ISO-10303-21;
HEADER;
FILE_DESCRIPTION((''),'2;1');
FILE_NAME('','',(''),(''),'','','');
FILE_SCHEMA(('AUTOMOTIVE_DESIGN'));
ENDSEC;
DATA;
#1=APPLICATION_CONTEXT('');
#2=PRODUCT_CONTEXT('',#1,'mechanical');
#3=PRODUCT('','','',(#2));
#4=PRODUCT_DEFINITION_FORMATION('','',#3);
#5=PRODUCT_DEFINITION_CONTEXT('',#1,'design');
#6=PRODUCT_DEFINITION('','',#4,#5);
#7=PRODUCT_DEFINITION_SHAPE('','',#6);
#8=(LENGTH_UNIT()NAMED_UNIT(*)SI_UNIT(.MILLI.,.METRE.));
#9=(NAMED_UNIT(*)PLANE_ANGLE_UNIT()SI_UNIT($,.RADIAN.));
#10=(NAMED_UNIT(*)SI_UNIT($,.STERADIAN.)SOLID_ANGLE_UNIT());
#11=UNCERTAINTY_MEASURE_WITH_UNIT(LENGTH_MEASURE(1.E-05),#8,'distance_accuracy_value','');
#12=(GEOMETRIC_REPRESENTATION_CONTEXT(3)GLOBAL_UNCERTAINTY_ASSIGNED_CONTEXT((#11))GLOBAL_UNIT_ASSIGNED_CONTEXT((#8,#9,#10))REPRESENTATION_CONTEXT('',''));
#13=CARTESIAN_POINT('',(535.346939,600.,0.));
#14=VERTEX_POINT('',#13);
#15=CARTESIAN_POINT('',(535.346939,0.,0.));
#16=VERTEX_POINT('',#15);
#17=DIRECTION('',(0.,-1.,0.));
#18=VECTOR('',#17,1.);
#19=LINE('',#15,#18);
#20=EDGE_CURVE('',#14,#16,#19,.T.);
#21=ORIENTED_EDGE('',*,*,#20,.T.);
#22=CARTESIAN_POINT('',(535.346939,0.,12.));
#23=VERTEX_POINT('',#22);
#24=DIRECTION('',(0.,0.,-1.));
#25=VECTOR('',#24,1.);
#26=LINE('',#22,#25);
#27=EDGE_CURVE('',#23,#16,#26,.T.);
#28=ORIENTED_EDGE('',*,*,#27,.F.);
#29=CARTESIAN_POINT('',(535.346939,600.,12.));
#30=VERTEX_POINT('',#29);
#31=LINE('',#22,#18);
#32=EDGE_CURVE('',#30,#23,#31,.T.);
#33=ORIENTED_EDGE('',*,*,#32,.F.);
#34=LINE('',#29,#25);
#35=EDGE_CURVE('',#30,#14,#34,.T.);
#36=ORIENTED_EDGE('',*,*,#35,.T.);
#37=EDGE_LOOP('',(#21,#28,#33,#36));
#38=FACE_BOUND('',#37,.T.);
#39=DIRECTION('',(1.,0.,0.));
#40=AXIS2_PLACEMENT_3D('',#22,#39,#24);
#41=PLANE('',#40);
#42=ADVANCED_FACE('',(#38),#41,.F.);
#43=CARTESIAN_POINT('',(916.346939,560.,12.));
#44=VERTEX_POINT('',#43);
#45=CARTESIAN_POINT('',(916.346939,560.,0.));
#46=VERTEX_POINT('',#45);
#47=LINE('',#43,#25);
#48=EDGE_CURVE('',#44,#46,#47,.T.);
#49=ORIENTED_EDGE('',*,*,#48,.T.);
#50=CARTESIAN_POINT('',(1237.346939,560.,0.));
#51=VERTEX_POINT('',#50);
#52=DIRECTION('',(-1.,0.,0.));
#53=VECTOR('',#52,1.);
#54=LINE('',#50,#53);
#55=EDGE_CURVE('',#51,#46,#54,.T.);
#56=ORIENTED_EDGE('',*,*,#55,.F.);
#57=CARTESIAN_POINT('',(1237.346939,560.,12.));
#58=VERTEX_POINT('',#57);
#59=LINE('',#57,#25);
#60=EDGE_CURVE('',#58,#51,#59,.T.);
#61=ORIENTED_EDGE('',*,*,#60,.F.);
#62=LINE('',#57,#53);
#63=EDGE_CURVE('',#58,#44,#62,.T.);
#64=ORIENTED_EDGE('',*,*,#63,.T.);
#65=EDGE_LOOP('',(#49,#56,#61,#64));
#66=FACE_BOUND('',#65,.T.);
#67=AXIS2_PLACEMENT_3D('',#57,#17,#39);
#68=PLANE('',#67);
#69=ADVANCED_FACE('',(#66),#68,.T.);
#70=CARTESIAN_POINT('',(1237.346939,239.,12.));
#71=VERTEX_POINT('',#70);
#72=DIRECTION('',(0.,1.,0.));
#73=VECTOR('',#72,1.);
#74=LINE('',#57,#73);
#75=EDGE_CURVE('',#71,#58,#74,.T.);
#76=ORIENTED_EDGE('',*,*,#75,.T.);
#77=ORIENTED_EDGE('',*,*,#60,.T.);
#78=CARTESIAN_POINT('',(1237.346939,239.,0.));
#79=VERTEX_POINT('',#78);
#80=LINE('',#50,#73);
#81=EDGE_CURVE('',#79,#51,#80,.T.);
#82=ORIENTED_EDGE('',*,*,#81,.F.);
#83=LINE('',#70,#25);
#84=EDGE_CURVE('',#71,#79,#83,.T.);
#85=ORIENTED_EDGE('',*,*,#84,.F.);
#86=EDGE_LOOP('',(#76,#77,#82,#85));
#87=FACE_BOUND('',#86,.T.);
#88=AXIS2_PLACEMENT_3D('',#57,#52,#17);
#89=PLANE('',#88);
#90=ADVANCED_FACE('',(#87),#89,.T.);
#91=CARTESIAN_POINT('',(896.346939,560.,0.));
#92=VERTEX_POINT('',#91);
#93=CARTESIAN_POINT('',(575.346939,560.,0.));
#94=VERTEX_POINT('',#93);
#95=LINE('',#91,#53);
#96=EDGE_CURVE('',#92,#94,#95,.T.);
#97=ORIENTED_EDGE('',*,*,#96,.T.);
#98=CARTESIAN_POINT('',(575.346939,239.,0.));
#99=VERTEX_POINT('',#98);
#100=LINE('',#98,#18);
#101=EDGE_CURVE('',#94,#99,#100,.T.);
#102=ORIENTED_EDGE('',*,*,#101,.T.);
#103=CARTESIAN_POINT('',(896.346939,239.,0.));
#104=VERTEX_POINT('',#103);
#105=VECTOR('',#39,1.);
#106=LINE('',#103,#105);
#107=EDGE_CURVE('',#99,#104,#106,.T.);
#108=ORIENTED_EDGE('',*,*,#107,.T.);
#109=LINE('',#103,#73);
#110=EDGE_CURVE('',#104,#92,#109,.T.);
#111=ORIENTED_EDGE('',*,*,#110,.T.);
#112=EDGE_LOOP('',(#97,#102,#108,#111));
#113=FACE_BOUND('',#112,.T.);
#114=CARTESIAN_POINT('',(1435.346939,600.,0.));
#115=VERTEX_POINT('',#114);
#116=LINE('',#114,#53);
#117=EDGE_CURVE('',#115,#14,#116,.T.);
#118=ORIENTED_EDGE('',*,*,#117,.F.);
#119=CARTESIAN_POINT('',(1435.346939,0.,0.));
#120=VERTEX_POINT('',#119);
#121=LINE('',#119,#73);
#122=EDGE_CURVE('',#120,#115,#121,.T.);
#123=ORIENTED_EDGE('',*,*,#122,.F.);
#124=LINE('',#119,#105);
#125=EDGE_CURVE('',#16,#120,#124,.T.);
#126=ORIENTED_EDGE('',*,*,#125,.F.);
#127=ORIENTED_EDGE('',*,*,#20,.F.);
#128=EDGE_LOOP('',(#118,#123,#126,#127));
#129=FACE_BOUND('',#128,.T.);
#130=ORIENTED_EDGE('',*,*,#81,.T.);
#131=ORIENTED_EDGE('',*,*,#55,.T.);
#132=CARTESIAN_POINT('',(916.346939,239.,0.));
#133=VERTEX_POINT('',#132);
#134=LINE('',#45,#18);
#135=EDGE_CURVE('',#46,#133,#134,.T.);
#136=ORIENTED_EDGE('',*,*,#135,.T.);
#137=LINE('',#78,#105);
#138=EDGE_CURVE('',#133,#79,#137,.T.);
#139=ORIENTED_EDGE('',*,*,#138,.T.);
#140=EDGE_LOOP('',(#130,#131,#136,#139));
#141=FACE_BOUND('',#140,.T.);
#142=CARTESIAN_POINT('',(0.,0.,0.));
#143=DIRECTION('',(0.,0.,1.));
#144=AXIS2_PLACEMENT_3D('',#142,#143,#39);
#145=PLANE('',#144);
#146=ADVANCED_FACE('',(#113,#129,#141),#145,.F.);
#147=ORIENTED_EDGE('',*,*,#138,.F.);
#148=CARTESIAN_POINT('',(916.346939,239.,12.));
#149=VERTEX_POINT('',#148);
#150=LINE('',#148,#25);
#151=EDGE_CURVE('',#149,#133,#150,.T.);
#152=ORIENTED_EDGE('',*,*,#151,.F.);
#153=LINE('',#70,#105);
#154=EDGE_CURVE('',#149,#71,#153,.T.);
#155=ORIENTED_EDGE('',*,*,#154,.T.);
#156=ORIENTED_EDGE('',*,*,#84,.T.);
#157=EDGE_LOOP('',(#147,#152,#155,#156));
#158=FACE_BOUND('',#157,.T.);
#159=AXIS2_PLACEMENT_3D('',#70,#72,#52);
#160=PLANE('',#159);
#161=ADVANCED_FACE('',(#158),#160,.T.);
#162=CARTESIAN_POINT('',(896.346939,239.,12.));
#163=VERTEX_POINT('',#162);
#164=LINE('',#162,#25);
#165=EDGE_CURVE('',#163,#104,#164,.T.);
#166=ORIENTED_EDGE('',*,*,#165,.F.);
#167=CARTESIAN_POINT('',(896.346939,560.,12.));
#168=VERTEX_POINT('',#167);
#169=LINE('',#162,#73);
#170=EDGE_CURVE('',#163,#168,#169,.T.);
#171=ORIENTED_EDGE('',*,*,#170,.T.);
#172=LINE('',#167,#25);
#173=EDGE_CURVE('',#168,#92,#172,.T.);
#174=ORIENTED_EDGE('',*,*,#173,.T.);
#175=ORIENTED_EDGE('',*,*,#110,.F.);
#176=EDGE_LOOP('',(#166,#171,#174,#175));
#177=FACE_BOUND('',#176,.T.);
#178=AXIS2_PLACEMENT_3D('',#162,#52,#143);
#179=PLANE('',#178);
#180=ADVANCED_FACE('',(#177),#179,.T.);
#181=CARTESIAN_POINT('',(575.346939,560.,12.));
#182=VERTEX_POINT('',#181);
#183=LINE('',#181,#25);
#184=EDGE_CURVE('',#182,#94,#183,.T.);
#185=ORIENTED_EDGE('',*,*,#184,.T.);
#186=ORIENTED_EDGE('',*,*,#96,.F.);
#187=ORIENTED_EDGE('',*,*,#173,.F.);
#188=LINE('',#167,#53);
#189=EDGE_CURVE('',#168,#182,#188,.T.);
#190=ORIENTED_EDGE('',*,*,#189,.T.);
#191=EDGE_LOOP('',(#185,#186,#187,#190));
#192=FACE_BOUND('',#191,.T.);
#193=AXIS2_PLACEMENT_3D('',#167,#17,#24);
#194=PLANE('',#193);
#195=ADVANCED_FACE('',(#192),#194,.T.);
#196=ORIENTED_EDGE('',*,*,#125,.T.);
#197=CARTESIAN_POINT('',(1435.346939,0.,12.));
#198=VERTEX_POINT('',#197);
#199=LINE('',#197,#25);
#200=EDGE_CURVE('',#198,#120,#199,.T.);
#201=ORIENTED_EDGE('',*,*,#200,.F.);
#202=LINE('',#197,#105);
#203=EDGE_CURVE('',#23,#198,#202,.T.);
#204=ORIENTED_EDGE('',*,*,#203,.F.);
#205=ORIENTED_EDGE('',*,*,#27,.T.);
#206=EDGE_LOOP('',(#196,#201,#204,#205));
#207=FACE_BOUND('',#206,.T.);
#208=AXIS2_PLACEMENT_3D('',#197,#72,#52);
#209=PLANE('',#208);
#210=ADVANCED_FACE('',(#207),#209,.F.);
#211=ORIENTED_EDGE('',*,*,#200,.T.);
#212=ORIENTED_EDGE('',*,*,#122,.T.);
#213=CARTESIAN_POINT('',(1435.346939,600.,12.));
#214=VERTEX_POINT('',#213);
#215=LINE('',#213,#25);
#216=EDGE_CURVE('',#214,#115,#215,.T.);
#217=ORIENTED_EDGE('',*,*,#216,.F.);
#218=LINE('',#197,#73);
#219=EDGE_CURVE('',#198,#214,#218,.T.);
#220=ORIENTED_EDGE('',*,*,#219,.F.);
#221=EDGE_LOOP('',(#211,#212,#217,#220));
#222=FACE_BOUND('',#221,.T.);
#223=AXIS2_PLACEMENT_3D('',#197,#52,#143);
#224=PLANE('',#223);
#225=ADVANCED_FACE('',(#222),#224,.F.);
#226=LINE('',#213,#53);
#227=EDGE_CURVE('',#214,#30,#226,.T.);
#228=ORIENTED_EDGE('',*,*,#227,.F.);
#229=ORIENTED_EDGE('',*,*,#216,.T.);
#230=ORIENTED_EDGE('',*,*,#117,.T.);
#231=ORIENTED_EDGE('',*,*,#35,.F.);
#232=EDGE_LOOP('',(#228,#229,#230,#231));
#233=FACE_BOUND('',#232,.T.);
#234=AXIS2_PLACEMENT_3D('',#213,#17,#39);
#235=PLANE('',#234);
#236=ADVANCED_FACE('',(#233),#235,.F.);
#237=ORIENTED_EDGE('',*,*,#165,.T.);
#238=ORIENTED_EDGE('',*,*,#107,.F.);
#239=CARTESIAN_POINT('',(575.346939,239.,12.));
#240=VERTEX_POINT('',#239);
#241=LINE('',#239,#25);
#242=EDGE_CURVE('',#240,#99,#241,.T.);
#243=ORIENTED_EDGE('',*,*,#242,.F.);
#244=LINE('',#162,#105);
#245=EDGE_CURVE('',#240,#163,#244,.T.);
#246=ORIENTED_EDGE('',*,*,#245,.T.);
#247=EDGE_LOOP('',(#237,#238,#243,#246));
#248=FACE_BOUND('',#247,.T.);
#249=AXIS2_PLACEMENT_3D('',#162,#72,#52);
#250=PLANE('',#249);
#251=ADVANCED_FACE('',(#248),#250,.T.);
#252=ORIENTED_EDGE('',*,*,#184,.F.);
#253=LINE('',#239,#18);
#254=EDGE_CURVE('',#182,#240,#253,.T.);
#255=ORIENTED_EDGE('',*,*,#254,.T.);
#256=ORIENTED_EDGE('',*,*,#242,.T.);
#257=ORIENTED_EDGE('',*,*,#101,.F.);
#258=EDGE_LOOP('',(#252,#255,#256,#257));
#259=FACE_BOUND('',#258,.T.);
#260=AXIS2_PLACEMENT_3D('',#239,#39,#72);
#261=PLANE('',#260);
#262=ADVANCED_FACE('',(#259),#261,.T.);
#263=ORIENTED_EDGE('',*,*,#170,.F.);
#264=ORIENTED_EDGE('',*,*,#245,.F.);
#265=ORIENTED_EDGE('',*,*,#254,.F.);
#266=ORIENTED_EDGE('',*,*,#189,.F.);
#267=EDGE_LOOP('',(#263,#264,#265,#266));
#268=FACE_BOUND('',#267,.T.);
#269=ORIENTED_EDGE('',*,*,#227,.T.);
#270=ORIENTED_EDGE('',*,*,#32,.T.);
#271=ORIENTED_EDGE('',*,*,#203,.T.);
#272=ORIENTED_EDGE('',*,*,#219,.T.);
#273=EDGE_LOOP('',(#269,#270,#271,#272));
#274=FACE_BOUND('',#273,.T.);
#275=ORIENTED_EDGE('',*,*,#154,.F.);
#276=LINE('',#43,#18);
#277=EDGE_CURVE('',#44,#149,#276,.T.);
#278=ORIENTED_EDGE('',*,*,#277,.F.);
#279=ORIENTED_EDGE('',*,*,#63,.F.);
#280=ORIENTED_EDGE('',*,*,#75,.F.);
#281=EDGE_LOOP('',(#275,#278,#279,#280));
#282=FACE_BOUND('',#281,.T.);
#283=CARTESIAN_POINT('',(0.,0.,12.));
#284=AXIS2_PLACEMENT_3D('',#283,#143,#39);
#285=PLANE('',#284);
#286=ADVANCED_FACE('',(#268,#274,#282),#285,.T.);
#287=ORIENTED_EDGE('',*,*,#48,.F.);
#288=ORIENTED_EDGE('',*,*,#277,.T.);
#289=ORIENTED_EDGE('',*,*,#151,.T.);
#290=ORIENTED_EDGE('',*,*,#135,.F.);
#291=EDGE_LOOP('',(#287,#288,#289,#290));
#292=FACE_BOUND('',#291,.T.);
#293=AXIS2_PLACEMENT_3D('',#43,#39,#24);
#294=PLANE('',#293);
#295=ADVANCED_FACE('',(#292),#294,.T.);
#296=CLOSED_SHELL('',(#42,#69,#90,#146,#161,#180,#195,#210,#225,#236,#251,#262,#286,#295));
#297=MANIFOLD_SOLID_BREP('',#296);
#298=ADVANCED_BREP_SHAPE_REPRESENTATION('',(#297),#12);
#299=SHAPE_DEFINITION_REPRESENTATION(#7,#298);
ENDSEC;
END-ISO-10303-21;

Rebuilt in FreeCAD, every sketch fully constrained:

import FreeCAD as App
import Part
import Sketcher

V = App.Vector
Q = App.Units.Quantity

doc = App.newDocument("Part")
body = doc.addObject("PartDesign::Body", "Body")

sketch1 = body.newObject("Sketcher::SketchObject", "Sketch")
sketch1.AttachmentSupport = (doc.getObject("XY_Plane"), [""])
sketch1.MapMode = "FlatFace"
sketch1.addGeometry([
    Part.LineSegment(V(535, 600, 0), V(535, 0, 0)),
    Part.LineSegment(V(535, 0, 0), V(1435, 0, 0)),
    Part.LineSegment(V(1435, 0, 0), V(1435, 600, 0)),
    Part.LineSegment(V(1435, 600, 0), V(535, 600, 0)),
    Part.LineSegment(V(896, 239, 0), V(575, 239, 0)),
    Part.LineSegment(V(575, 239, 0), V(575, 560, 0)),
    Part.LineSegment(V(575, 560, 0), V(896, 560, 0)),
    Part.LineSegment(V(896, 560, 0), V(896, 239, 0)),
    Part.LineSegment(V(1237, 239, 0), V(916, 239, 0)),
    Part.LineSegment(V(916, 239, 0), V(916, 560, 0)),
    Part.LineSegment(V(916, 560, 0), V(1237, 560, 0)),
    Part.LineSegment(V(1237, 560, 0), V(1237, 239, 0)),
], False)
sketch1.addConstraint([
    Sketcher.Constraint("Coincident", 0, 2, 1, 1),
    Sketcher.Constraint("Coincident", 1, 2, 2, 1),
    Sketcher.Constraint("Coincident", 2, 2, 3, 1),
    Sketcher.Constraint("Coincident", 3, 2, 0, 1),
    Sketcher.Constraint("Coincident", 4, 2, 5, 1),
    Sketcher.Constraint("Coincident", 5, 2, 6, 1),
    Sketcher.Constraint("Coincident", 6, 2, 7, 1),
    Sketcher.Constraint("Coincident", 7, 2, 4, 1),
    Sketcher.Constraint("Coincident", 8, 2, 9, 1),
    Sketcher.Constraint("Coincident", 9, 2, 10, 1),
    Sketcher.Constraint("Coincident", 10, 2, 11, 1),
    Sketcher.Constraint("Coincident", 11, 2, 8, 1),
    Sketcher.Constraint("Vertical", 0),
    Sketcher.Constraint("Horizontal", 1),
    Sketcher.Constraint("Vertical", 2),
    Sketcher.Constraint("Horizontal", 3),
    Sketcher.Constraint("Horizontal", 4),
    Sketcher.Constraint("Vertical", 5),
    Sketcher.Constraint("Horizontal", 6),
    Sketcher.Constraint("Vertical", 7),
    Sketcher.Constraint("Horizontal", 8),
    Sketcher.Constraint("Vertical", 9),
    Sketcher.Constraint("Horizontal", 10),
    Sketcher.Constraint("Vertical", 11),
    Sketcher.Constraint("PointOnObject", 0, 2, -1),
    Sketcher.Constraint("Horizontal", 7, 2, 8, 2),
    Sketcher.Constraint("Horizontal", 6, 2, 9, 2),
    Sketcher.Constraint("Equal", 6, 8),
    Sketcher.Constraint("Equal", 10, 5),
    Sketcher.Constraint("DistanceX", 1, 1, 1, 2, Q("900 mm")),
    Sketcher.Constraint("DistanceX", 4, 2, 4, 1, Q("321 mm")),
    Sketcher.Constraint("DistanceY", 0, 2, 0, 1, Q("600 mm")),
    Sketcher.Constraint("DistanceY", -1, 1, 4, 2, Q("239 mm")),
    Sketcher.Constraint("DistanceX", 0, 2, 4, 2, Q("40 mm")),
    Sketcher.Constraint("DistanceX", 7, 2, 8, 2, Q("20 mm")),
    Sketcher.Constraint("DistanceX", -1, 1, 0, 2, Q("535.346939 mm")),
])
pad1 = body.newObject("PartDesign::Pad", "Pad")
pad1.Profile = sketch1
pad1.Length = 12

doc.recompute()
